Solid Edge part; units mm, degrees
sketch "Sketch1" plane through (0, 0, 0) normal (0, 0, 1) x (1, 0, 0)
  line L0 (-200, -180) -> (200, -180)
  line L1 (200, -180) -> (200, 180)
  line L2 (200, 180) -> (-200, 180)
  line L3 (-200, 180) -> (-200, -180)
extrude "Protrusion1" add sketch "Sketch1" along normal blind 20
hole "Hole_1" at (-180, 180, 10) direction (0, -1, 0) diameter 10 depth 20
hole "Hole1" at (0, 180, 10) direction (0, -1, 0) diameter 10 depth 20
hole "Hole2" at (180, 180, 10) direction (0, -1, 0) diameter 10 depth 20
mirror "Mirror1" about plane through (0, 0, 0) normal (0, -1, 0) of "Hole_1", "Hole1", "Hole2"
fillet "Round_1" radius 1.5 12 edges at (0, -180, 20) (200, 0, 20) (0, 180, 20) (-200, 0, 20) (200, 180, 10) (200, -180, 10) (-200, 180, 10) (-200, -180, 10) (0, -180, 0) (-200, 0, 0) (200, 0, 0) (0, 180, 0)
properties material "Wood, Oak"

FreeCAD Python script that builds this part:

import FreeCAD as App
import Part
import Sketcher

V = App.Vector


def edges_at(feature, points):
    """Names of the edges that pass closest to the given points."""
    edges = feature.Shape.Edges
    near = lambda p: min(range(len(edges)), key=lambda i: edges[i].distToShape(Part.Vertex(*p))[0])
    return sorted({f"Edge{near(p) + 1}" for p in points})

doc = App.newDocument("Part")
body = doc.addObject("PartDesign::Body", "Body")

sketch1 = doc.addObject("Sketcher::SketchObject", "Sketch")
body.addObject(sketch1)
sketch1.AttachmentSupport = (doc.XY_Plane, [""])
sketch1.MapMode = "FlatFace"
sketch1.addGeometry([
    Part.LineSegment(V(-200, 180, 0), V(-200, -180, 0)),
    Part.LineSegment(V(-200, -180, 0), V(200, -180, 0)),
    Part.LineSegment(V(200, -180, 0), V(200, 180, 0)),
    Part.LineSegment(V(200, 180, 0), V(-200, 180, 0)),
], False)
sketch1.addConstraint([
    Sketcher.Constraint("Coincident", 0, 2, 1, 1),
    Sketcher.Constraint("Coincident", 1, 2, 2, 1),
    Sketcher.Constraint("Coincident", 2, 2, 3, 1),
    Sketcher.Constraint("Coincident", 3, 2, 0, 1),
    Sketcher.Constraint("Vertical", 0),
    Sketcher.Constraint("Horizontal", 1),
    Sketcher.Constraint("Vertical", 2),
    Sketcher.Constraint("Horizontal", 3),
    Sketcher.Constraint("Symmetric", 0, 2, 2, 2, -1, 1),
    Sketcher.Constraint("DistanceX", 1, 1, 1, 2, 400.0),
    Sketcher.Constraint("DistanceY", 0, 2, 0, 1, 360.0),
])
pad1 = doc.addObject("PartDesign::Pad", "Pad")
body.addObject(pad1)
pad1.Profile = sketch1
pad1.Length = 20

sketch2 = doc.addObject("Sketcher::SketchObject", "Sketch001")
body.addObject(sketch2)
sketch2.AttachmentSupport = (doc.XZ_Plane, [""])
sketch2.MapMode = "FlatFace"
sketch2.AttachmentOffset = App.Placement(V(0, 0, -180), App.Rotation())
sketch2.addGeometry(Part.Circle(V(-180, 10, 0), V(0, 0, 1), 5), False)
sketch2.addConstraint([
    Sketcher.Constraint("Diameter", 0, 10.0),
    Sketcher.Constraint("DistanceX", 0, 3, -1, 1, 180.0),
    Sketcher.Constraint("DistanceY", -1, 1, 0, 3, 10.0),
])
doc.recompute()
hole = doc.addObject("PartDesign::Hole", "Hole")
body.addObject(hole)
hole.Profile = sketch2
hole.ThreadType = "None"
hole.Diameter = 10
hole.DepthType = "Dimension"
hole.Depth = 20
hole.DrillPoint = "Flat"
hole.Reversed = True

sketch3 = doc.addObject("Sketcher::SketchObject", "Sketch002")
body.addObject(sketch3)
sketch3.AttachmentSupport = (doc.XZ_Plane, [""])
sketch3.MapMode = "FlatFace"
sketch3.AttachmentOffset = App.Placement(V(0, 0, -180), App.Rotation())
sketch3.addGeometry(Part.Circle(V(0, 10, 0), V(0, 0, 1), 5), False)
sketch3.addConstraint([
    Sketcher.Constraint("PointOnObject", 0, 3, -2),
    Sketcher.Constraint("Diameter", 0, 10.0),
    Sketcher.Constraint("DistanceY", -1, 1, 0, 3, 10.0),
])
doc.recompute()
hole2 = doc.addObject("PartDesign::Hole", "Hole001")
body.addObject(hole2)
hole2.Profile = sketch3
hole2.ThreadType = "None"
hole2.Diameter = 10
hole2.DepthType = "Dimension"
hole2.Depth = 20
hole2.DrillPoint = "Flat"
hole2.Reversed = True

sketch4 = doc.addObject("Sketcher::SketchObject", "Sketch003")
body.addObject(sketch4)
sketch4.AttachmentSupport = (doc.XZ_Plane, [""])
sketch4.MapMode = "FlatFace"
sketch4.AttachmentOffset = App.Placement(V(0, 0, -180), App.Rotation())
sketch4.addGeometry(Part.Circle(V(180, 10, 0), V(0, 0, 1), 5), False)
sketch4.addConstraint([
    Sketcher.Constraint("Diameter", 0, 10.0),
    Sketcher.Constraint("DistanceX", -1, 1, 0, 3, 180.0),
    Sketcher.Constraint("DistanceY", -1, 1, 0, 3, 10.0),
])
doc.recompute()
hole3 = doc.addObject("PartDesign::Hole", "Hole002")
body.addObject(hole3)
hole3.Profile = sketch4
hole3.ThreadType = "None"
hole3.Diameter = 10
hole3.DepthType = "Dimension"
hole3.Depth = 20
hole3.DrillPoint = "Flat"
hole3.Reversed = True
doc.recompute()

mirrored = doc.addObject("PartDesign::Mirrored", "Mirrored")
body.addObject(mirrored)
mirrored.Originals = [hole, hole2, hole3]
mirrored.MirrorPlane = (doc.XZ_Plane, [""])
body.Tip = mirrored
doc.recompute()

fillet = doc.addObject("PartDesign::Fillet", "Fillet")
body.addObject(fillet)
fillet.Base = (mirrored, edges_at(mirrored, [
    (0, -180, 20),
    (200, 0, 20),
    (0, 180, 20),
    (-200, 0, 20),
    (200, 180, 10),
    (200, -180, 10),
    (-200, 180, 10),
    (-200, -180, 10),
    (0, -180, 0),
    (-200, 0, 0),
    (200, 0, 0),
    (0, 180, 0),
]))
fillet.Radius = 1.5

doc.recompute()
